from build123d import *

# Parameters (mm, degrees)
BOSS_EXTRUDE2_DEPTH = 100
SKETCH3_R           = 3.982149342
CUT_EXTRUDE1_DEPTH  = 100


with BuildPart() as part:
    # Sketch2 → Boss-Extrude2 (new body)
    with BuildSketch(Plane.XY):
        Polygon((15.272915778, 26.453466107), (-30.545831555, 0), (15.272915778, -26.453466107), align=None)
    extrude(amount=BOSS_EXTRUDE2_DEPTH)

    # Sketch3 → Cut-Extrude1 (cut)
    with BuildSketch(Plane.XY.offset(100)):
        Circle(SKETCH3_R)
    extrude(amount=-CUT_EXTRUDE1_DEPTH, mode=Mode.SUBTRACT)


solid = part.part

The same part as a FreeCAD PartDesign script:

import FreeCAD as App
import Part
import Sketcher

V = App.Vector
Q = App.Units.Quantity

doc = App.newDocument("Part")
body = doc.addObject("PartDesign::Body", "Body")

# Sketch on XY plane
sketch1 = doc.addObject("Sketcher::SketchObject", "Sketch")
body.addObject(sketch1)
sketch1.AttachmentSupport = (doc.XY_Plane, [""])
sketch1.MapMode = "FlatFace"
sketch1.addGeometry(Part.LineSegment(V(15, 26, 0), V(-31, 0, 0)), False)
sketch1.addGeometry(Part.LineSegment(V(-31, 0, 0), V(15, -26, 0)), False)
sketch1.addGeometry(Part.LineSegment(V(15, -26, 0), V(15, 26, 0)), False)
sketch1.addConstraint(Sketcher.Constraint("Coincident", 0, 2, 1, 1))
sketch1.addConstraint(Sketcher.Constraint("Coincident", 1, 2, 2, 1))
sketch1.addConstraint(Sketcher.Constraint("Coincident", 2, 2, 0, 1))
sketch1.addConstraint(Sketcher.Constraint("Vertical", 2))
sketch1.addConstraint(Sketcher.Constraint("PointOnObject", 0, 2, -1))
sketch1.addConstraint(Sketcher.Constraint("Equal", 0, 1))
sketch1.addConstraint(Sketcher.Constraint("Angle", 0, Q("-150 deg")))
sketch1.addConstraint(Sketcher.Constraint("DistanceY", 2, 1, 2, 2, 52.906932))
sketch1.addConstraint(Sketcher.Constraint("DistanceX", 0, 2, -1, 1, 30.545832))
pad1 = doc.addObject("PartDesign::Pad", "Pad")
body.addObject(pad1)
pad1.Profile = sketch1
pad1.Length = 100

# Sketch on XY plane
sketch2 = doc.addObject("Sketcher::SketchObject", "Sketch001")
body.addObject(sketch2)
sketch2.AttachmentSupport = (doc.XY_Plane, [""])
sketch2.MapMode = "FlatFace"
sketch2.AttachmentOffset = App.Placement(V(0, 0, 100), App.Rotation())
sketch2.addGeometry(Part.Circle(V(0, 0, 0), V(0, 0, 1), 4), False)
sketch2.addConstraint(Sketcher.Constraint("Coincident", 0, 3, -1, 1))
sketch2.addConstraint(Sketcher.Constraint("Diameter", 0, 7.964299))
pocket1 = doc.addObject("PartDesign::Pocket", "Pocket")
body.addObject(pocket1)
pocket1.Profile = sketch2
pocket1.Length = 100

doc.recompute()
